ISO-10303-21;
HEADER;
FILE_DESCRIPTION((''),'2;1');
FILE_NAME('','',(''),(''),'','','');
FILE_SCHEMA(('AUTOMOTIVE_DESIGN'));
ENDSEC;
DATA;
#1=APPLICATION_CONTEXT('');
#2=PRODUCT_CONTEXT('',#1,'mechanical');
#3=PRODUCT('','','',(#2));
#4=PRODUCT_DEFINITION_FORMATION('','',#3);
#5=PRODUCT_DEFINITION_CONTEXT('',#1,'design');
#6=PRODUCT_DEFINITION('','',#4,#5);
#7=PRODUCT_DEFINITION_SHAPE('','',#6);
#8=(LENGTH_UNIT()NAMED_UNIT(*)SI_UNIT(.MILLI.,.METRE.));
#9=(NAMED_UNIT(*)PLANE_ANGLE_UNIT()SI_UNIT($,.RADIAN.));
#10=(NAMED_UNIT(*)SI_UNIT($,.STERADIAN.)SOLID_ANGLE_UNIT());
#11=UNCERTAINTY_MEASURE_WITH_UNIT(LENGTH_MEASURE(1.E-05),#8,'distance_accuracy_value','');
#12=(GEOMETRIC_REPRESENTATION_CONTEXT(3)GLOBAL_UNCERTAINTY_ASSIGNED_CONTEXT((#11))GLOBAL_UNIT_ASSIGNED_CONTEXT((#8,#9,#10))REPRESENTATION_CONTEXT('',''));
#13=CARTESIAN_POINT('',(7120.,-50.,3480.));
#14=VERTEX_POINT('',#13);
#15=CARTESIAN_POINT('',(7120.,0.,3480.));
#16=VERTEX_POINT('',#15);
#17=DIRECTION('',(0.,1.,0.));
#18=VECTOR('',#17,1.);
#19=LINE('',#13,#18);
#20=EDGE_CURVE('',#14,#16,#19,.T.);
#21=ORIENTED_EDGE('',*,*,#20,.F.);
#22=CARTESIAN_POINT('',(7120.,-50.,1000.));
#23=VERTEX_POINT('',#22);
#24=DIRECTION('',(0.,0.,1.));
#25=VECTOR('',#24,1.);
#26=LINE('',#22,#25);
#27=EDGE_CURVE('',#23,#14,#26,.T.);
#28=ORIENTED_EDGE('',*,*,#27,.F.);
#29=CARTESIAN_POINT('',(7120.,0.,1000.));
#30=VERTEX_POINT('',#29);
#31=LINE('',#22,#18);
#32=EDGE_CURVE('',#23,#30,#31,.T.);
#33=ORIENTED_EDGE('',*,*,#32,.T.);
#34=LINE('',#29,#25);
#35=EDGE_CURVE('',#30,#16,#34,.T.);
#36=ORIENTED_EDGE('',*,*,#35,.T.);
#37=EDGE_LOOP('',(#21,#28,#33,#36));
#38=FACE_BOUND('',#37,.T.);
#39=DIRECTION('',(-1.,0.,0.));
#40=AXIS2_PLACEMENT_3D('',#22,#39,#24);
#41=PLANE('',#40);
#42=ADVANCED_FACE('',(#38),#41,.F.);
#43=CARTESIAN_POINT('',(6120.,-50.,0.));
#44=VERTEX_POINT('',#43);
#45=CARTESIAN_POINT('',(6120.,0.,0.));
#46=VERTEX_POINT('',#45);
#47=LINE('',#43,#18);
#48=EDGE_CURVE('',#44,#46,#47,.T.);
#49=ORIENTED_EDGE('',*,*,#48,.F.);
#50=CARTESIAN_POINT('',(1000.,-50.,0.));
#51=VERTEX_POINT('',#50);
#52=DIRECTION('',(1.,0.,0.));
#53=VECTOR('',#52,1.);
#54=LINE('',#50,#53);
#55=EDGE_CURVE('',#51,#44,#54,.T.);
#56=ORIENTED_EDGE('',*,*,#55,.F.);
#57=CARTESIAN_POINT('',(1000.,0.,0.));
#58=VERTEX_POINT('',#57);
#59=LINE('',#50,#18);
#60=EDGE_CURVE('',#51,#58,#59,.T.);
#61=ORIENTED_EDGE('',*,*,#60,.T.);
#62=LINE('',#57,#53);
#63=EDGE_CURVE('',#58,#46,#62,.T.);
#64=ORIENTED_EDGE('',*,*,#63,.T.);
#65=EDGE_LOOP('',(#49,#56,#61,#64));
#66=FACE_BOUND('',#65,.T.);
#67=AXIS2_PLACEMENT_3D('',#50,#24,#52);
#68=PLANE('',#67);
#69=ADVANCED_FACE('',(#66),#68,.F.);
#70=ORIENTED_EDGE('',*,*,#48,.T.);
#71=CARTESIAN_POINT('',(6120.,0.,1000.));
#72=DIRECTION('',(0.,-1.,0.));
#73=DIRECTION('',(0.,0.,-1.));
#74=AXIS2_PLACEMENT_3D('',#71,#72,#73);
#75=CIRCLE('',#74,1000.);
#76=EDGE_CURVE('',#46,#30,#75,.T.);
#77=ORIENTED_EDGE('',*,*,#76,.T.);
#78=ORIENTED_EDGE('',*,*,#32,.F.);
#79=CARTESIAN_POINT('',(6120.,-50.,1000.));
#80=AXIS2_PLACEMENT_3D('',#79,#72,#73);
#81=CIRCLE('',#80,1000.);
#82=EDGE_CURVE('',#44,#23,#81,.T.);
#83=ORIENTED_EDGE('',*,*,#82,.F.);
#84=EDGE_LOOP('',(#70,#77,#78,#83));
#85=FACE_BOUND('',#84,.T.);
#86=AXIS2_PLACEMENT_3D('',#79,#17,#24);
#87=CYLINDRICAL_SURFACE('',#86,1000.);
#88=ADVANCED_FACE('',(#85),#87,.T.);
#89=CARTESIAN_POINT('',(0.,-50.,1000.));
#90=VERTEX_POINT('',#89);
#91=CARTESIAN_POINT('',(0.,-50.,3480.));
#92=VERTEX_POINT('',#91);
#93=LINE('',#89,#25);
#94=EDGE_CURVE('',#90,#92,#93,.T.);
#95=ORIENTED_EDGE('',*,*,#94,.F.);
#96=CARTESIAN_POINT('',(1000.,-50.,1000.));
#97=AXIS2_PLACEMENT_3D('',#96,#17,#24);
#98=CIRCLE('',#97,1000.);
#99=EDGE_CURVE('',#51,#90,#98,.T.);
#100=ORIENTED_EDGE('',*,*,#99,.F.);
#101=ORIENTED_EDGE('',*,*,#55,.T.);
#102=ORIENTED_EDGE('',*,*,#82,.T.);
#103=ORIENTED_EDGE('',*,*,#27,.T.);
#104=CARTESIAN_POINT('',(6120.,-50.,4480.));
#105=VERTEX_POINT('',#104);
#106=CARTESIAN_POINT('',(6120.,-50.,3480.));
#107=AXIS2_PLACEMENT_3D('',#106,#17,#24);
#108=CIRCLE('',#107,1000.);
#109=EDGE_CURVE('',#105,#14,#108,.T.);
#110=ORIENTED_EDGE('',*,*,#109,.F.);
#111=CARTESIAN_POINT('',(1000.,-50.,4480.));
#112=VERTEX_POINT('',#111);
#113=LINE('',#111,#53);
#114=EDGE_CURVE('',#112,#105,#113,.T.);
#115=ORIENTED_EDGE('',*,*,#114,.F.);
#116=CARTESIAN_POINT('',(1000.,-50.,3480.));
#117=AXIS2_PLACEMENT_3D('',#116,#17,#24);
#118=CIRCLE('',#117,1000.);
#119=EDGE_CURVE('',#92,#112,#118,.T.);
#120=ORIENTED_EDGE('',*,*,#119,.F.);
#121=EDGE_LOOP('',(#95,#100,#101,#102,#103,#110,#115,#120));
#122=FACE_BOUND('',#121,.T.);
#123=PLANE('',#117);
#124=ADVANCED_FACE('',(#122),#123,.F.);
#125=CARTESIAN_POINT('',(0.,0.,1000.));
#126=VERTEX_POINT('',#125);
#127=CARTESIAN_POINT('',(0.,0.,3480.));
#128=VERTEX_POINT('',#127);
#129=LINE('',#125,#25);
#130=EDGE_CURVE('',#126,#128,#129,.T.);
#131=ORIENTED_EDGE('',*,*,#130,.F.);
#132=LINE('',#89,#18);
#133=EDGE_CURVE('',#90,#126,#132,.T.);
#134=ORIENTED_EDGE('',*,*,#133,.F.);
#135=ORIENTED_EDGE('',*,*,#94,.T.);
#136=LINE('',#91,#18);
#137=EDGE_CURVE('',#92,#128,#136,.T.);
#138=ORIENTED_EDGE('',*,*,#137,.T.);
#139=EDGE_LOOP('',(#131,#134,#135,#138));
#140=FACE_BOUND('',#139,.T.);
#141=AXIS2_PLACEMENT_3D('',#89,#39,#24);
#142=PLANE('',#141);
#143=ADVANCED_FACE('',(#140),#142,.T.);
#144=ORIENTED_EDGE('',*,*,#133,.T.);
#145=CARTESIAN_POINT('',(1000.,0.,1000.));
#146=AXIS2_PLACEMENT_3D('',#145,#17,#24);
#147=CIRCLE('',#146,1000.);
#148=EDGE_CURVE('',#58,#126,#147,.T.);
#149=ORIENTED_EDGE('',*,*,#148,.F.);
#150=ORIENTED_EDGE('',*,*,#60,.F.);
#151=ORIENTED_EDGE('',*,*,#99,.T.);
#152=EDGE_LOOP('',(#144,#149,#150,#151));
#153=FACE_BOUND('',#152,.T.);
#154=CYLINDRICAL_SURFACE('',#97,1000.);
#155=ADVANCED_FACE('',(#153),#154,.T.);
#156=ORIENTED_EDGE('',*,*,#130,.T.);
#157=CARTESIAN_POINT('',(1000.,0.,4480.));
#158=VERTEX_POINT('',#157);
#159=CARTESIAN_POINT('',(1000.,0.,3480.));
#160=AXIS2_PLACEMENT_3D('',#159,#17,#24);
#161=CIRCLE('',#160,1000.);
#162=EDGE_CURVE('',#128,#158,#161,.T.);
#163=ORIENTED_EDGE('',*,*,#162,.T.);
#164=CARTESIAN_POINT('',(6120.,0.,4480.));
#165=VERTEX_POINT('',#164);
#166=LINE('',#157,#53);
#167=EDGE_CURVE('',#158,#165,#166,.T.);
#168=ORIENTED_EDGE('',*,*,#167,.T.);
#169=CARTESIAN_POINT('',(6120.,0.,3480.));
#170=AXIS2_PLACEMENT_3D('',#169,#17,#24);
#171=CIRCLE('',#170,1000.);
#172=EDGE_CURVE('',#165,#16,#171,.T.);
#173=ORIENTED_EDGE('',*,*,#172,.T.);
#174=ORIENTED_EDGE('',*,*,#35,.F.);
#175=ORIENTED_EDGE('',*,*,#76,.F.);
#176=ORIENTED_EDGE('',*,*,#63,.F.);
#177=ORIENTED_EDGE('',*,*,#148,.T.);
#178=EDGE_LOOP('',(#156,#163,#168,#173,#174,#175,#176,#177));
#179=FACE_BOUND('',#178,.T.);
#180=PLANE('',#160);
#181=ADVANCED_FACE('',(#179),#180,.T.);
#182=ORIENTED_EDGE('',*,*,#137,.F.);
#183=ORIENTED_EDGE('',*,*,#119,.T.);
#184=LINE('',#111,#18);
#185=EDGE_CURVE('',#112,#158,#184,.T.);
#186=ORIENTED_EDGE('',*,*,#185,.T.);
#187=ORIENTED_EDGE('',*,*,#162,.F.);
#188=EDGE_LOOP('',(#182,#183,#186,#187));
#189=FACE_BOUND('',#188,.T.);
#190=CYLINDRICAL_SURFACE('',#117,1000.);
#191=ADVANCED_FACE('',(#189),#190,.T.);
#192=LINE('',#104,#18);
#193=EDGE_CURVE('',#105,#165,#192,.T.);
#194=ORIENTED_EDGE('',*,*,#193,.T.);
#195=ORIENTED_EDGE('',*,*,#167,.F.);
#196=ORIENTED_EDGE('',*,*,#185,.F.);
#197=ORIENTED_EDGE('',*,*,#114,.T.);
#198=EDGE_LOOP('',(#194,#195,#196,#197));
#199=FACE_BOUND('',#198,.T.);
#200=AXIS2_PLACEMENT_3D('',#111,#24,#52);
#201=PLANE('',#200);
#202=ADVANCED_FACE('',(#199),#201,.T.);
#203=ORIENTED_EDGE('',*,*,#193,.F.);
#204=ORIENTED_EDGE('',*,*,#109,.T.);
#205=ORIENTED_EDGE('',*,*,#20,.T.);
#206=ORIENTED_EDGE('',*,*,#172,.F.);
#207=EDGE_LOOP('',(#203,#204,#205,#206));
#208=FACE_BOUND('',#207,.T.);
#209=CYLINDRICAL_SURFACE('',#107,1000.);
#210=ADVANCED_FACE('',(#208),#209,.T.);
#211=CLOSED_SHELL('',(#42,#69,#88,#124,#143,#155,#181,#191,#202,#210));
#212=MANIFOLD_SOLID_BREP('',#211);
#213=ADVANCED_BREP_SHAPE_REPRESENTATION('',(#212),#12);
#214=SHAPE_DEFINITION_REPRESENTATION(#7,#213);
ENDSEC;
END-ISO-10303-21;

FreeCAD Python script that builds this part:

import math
import FreeCAD as App
import Part
import Sketcher

doc = App.newDocument("Part")
body = doc.addObject("PartDesign::Body", "Body")

# Sketch on XZ plane
sketch1 = doc.addObject("Sketcher::SketchObject", "Sketch")
body.addObject(sketch1)
sketch1.AttachmentSupport = (doc.XZ_Plane, [""])
sketch1.MapMode = "FlatFace"
sketch1.addGeometry(Part.LineSegment(App.Vector(6120, 0, 0), App.Vector(1000, 0, 0)), False)
sketch1.addGeometry(Part.ArcOfCircle(Part.Circle(App.Vector(1000, 1000, 0), App.Vector(0, 0, 1), 1000), math.radians(180), math.radians(270)), False)
sketch1.addGeometry(Part.LineSegment(App.Vector(0, 1000, 0), App.Vector(0, 3480, 0)), False)
sketch1.addGeometry(Part.ArcOfCircle(Part.Circle(App.Vector(1000, 3480, 0), App.Vector(0, 0, 1), 1000), math.radians(90), math.radians(180)), False)
sketch1.addGeometry(Part.LineSegment(App.Vector(1000, 4480, 0), App.Vector(6120, 4480, 0)), False)
sketch1.addGeometry(Part.ArcOfCircle(Part.Circle(App.Vector(6120, 3480, 0), App.Vector(0, 0, 1), 1000), math.radians(0), math.radians(90)), False)
sketch1.addGeometry(Part.LineSegment(App.Vector(7120, 3480, 0), App.Vector(7120, 1000, 0)), False)
sketch1.addGeometry(Part.ArcOfCircle(Part.Circle(App.Vector(6120, 1000, 0), App.Vector(0, 0, 1), 1000), math.radians(-90), math.radians(0)), False)
sketch1.addConstraint(Sketcher.Constraint("Coincident", 0, 2, 1, 2))
sketch1.addConstraint(Sketcher.Constraint("Coincident", 1, 1, 2, 1))
sketch1.addConstraint(Sketcher.Constraint("Coincident", 2, 2, 3, 2))
sketch1.addConstraint(Sketcher.Constraint("Coincident", 3, 1, 4, 1))
sketch1.addConstraint(Sketcher.Constraint("Coincident", 4, 2, 5, 2))
sketch1.addConstraint(Sketcher.Constraint("Coincident", 5, 1, 6, 1))
sketch1.addConstraint(Sketcher.Constraint("Coincident", 6, 2, 7, 2))
sketch1.addConstraint(Sketcher.Constraint("Coincident", 7, 1, 0, 1))
sketch1.addConstraint(Sketcher.Constraint("Horizontal", 0))
sketch1.addConstraint(Sketcher.Constraint("Vertical", 2))
sketch1.addConstraint(Sketcher.Constraint("Horizontal", 4))
sketch1.addConstraint(Sketcher.Constraint("Vertical", 6))
sketch1.addConstraint(Sketcher.Constraint("Equal", 1, 3))
sketch1.addConstraint(Sketcher.Constraint("Equal", 3, 5))
sketch1.addConstraint(Sketcher.Constraint("Equal", 5, 7))
sketch1.addConstraint(Sketcher.Constraint("PointOnObject", 0, 2, -1))
sketch1.addConstraint(Sketcher.Constraint("PointOnObject", 1, 1, -2))
sketch1.addConstraint(Sketcher.Constraint("Horizontal", 5, 3, 2, 2))
sketch1.addConstraint(Sketcher.Constraint("Vertical", 3, 3, 0, 2))
sketch1.addConstraint(Sketcher.Constraint("Vertical", 7, 3, 4, 2))
sketch1.addConstraint(Sketcher.Constraint("Equal", 0, 4))
sketch1.addConstraint(Sketcher.Constraint("Equal", 2, 6))
sketch1.addConstraint(Sketcher.Constraint("Radius", 1, 1000.0))
sketch1.addConstraint(Sketcher.Constraint("DistanceX", 0, 2, 0, 1, 5120.0))
sketch1.addConstraint(Sketcher.Constraint("DistanceY", 2, 1, 2, 2, 2480.0))
sketch1.addConstraint(Sketcher.Constraint("DistanceY", -1, 1, 3, 3, 3480.0))
sketch1.addConstraint(Sketcher.Constraint("DistanceX", -1, 1, 5, 3, 6120.0))
sketch1.addConstraint(Sketcher.Constraint("DistanceY", -1, 1, 6, 2, 1000.0))
pad1 = doc.addObject("PartDesign::Pad", "Pad")
body.addObject(pad1)
pad1.Profile = sketch1
pad1.Length = 50

doc.recompute()
